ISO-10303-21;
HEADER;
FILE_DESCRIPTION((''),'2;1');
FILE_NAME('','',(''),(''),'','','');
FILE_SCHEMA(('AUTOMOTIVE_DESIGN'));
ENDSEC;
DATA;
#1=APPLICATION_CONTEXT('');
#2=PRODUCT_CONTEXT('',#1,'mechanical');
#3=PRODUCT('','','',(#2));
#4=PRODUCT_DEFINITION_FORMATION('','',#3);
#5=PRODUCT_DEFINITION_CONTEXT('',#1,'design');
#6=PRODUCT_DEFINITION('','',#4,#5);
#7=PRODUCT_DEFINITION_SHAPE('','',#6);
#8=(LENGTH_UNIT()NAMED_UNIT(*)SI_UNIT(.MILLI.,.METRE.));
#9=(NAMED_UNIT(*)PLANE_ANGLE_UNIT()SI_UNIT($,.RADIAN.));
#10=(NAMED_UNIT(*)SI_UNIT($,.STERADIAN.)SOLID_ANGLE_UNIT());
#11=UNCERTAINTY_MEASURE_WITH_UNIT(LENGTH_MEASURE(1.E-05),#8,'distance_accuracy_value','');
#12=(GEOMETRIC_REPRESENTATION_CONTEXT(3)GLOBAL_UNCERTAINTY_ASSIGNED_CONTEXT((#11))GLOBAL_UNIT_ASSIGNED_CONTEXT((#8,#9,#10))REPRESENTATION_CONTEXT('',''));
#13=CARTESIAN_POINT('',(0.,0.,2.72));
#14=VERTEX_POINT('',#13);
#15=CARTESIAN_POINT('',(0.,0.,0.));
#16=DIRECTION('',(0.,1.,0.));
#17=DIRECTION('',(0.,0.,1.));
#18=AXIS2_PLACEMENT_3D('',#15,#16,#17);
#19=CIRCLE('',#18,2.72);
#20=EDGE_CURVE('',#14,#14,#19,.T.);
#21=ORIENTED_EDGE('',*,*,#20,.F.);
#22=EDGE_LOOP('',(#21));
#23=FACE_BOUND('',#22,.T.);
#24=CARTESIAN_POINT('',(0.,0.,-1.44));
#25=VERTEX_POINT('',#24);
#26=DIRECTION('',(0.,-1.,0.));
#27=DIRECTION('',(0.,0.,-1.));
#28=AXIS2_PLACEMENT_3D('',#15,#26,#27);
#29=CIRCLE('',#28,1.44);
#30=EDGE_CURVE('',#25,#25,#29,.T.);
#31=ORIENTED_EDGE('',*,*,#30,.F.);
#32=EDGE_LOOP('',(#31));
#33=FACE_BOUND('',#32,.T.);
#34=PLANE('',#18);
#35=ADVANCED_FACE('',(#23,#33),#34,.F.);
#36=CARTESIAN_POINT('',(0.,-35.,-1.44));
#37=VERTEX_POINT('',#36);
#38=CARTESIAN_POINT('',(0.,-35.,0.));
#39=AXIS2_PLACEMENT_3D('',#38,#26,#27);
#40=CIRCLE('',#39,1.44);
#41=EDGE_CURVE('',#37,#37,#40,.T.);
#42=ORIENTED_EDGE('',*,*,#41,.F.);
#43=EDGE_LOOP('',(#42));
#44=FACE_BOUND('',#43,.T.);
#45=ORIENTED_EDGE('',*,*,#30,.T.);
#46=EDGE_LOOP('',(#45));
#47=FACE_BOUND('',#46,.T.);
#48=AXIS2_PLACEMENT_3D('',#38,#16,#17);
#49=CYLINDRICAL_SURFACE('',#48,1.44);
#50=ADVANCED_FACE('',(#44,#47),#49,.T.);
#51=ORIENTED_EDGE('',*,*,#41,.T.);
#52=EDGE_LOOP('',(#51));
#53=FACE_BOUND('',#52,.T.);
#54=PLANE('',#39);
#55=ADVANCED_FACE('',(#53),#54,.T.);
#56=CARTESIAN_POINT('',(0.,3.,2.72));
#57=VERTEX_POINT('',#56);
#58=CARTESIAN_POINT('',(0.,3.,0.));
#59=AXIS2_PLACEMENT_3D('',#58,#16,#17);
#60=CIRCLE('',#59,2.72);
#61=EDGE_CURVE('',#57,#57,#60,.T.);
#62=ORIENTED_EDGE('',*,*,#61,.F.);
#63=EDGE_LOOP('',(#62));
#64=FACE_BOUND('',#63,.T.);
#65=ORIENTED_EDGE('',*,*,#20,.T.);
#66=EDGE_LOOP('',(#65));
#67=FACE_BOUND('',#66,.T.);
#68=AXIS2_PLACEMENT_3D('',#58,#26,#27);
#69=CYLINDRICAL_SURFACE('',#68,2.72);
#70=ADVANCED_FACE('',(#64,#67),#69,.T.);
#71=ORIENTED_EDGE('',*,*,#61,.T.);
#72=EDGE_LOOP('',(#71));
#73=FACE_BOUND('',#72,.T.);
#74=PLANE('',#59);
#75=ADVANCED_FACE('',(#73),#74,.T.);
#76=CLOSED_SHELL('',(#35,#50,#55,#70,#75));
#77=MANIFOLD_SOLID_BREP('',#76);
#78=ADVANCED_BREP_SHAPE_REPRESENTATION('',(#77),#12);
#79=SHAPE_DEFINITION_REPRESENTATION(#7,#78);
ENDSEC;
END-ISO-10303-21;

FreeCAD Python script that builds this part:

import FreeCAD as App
import Part
import Sketcher

V = App.Vector
Q = App.Units.Quantity

doc = App.newDocument("Part")
body = doc.addObject("PartDesign::Body", "Body")

sketch1 = body.newObject("Sketcher::SketchObject", "Sketch")
sketch1.AttachmentSupport = (doc.getObject("XZ_Plane"), [""])
sketch1.MapMode = "FlatFace"
sketch1.addGeometry(Part.Circle(V(0, 0, 0), V(0, 0, 1), 2.72), False)
sketch1.addConstraint(Sketcher.Constraint("Coincident", 0, 3, -1, 1))
sketch1.addConstraint(Sketcher.Constraint("Diameter", 0, Q("5.44 mm")))
pad1 = body.newObject("PartDesign::Pad", "Pad")
pad1.Profile = sketch1
pad1.Length = 3
pad1.Reversed = True

sketch2 = body.newObject("Sketcher::SketchObject", "Sketch001")
sketch2.AttachmentSupport = (doc.getObject("XZ_Plane"), [""])
sketch2.MapMode = "FlatFace"
sketch2.addGeometry(Part.Circle(V(0, 0, 0), V(0, 0, 1), 1.44), False)
sketch2.addConstraint(Sketcher.Constraint("Coincident", 0, 3, -1, 1))
sketch2.addConstraint(Sketcher.Constraint("Diameter", 0, Q("2.88 mm")))
pad2 = body.newObject("PartDesign::Pad", "Pad001")
pad2.Profile = sketch2
pad2.Length = 35

doc.recompute()
